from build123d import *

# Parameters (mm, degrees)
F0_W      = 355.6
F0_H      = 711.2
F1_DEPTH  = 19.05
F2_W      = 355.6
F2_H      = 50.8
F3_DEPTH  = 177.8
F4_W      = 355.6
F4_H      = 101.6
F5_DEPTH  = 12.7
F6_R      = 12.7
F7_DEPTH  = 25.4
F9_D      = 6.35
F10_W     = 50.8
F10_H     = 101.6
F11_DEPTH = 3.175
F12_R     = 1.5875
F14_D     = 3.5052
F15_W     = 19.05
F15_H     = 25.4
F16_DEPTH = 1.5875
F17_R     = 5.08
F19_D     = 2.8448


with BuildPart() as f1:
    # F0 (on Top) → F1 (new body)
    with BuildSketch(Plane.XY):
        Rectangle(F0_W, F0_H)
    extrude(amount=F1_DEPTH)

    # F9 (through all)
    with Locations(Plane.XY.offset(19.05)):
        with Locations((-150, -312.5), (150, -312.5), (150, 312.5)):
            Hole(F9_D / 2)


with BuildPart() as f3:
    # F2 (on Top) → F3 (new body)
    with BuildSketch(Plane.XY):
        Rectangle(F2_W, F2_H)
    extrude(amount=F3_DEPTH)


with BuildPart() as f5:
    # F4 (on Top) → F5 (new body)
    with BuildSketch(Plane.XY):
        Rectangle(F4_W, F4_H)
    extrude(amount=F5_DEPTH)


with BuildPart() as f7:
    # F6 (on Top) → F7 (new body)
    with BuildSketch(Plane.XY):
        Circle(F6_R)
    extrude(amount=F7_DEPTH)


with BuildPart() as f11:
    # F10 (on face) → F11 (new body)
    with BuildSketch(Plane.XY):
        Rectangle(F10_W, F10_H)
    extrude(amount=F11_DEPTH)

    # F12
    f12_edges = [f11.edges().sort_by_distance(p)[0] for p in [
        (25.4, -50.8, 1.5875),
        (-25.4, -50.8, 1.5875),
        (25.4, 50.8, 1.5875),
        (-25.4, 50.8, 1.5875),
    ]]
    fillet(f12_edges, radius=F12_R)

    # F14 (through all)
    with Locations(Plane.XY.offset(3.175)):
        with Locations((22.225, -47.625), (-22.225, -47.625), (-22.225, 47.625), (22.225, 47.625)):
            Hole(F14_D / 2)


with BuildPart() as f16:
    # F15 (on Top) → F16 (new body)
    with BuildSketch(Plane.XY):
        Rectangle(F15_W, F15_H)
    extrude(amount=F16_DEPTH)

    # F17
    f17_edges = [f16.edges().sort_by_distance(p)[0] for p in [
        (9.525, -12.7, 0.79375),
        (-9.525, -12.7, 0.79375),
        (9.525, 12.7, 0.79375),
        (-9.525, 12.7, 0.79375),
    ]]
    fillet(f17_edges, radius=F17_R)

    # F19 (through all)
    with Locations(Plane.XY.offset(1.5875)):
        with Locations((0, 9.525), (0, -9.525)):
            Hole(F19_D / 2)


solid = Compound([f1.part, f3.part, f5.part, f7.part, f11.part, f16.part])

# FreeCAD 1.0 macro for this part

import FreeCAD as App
import Part
import Sketcher

V = App.Vector
Q = App.Units.Quantity


def edges_at(feature, points):
    """Names of the edges that pass closest to the given points."""
    edges = feature.Shape.Edges
    near = lambda p: min(range(len(edges)), key=lambda i: edges[i].distToShape(Part.Vertex(*p))[0])
    return sorted({f"Edge{near(p) + 1}" for p in points})


def add_polygon(sketch, points):
    """Adds a closed chain of lines whose ends are joined by coincident constraints."""
    first, n = sketch.GeometryCount, len(points)
    for a, b in zip(points, points[1:] + points[:1]):
        sketch.addGeometry(Part.LineSegment(App.Vector(*a, 0), App.Vector(*b, 0)), False)
    for i in range(n):
        sketch.addConstraint(Sketcher.Constraint("Coincident", first + i, 2, first + (i + 1) % n, 1))

doc = App.newDocument("Part")
body = doc.addObject("PartDesign::Body", "Body")

# Sketch on XY plane
sketch1 = doc.addObject("Sketcher::SketchObject", "Sketch")
body.addObject(sketch1)
sketch1.AttachmentSupport = (doc.XY_Plane, [""])
sketch1.MapMode = "FlatFace"
add_polygon(sketch1, [(-178, 356), (-178, -356), (178, -356), (178, 356)])  # lines 0-3
sketch1.addConstraint([
    Sketcher.Constraint("Vertical", 0),
    Sketcher.Constraint("Horizontal", 1),
    Sketcher.Constraint("Vertical", 2),
    Sketcher.Constraint("Horizontal", 3),
    Sketcher.Constraint("Symmetric", 0, 2, 2, 2, -1, 1),
    Sketcher.Constraint("DistanceX", 1, 1, 1, 2, Q("14 in")),
    Sketcher.Constraint("DistanceY", 0, 2, 0, 1, Q("28 in")),
])
pad1 = doc.addObject("PartDesign::Pad", "Pad")
body.addObject(pad1)
pad1.Profile = sketch1
pad1.Length = Q("0.75 in")

# Sketch on XY plane
sketch2 = doc.addObject("Sketcher::SketchObject", "Sketch001")
body.addObject(sketch2)
sketch2.AttachmentSupport = (doc.XY_Plane, [""])
sketch2.MapMode = "FlatFace"
sketch2.AttachmentOffset = App.Placement(V(0, 0, 0.75 * 25.4), App.Rotation())
sketch2.addGeometry([
    Part.Circle(V(-150, -312.5, 0), V(0, 0, 1), 3.2),
    Part.Circle(V(150, -312.5, 0), V(0, 0, 1), 3.2),
    Part.Circle(V(150, 312.5, 0), V(0, 0, 1), 3.2),
], False)
sketch2.addConstraint([
    Sketcher.Constraint("Equal", 0, 1),
    Sketcher.Constraint("Equal", 1, 2),
    Sketcher.Constraint("Symmetric", 0, 3, 2, 3, -1, 1),
    Sketcher.Constraint("Symmetric", 0, 3, 1, 3, -2),
    Sketcher.Constraint("Diameter", 0, Q("0.25 in")),
    Sketcher.Constraint("DistanceX", 0, 3, -1, 1, Q("150 mm")),
    Sketcher.Constraint("DistanceY", 0, 3, -1, 1, Q("312.5 mm")),
])
doc.recompute()
hole = doc.addObject("PartDesign::Hole", "Hole")
body.addObject(hole)
hole.Profile = sketch2
hole.ThreadType = "None"
hole.Diameter = Q("0.25 in")
hole.DepthType = "ThroughAll"
body2 = doc.addObject("PartDesign::Body", "Body001")

# Sketch on XY plane
sketch3 = doc.addObject("Sketcher::SketchObject", "Sketch002")
body2.addObject(sketch3)
sketch3.AttachmentSupport = (doc.getObject("XY_Plane001"), [""])
sketch3.MapMode = "FlatFace"
add_polygon(sketch3, [(-178, 25), (-178, -25), (178, -25), (178, 25)])  # lines 0-3
sketch3.addConstraint([
    Sketcher.Constraint("Vertical", 0),
    Sketcher.Constraint("Horizontal", 1),
    Sketcher.Constraint("Vertical", 2),
    Sketcher.Constraint("Horizontal", 3),
    Sketcher.Constraint("Symmetric", 0, 2, 2, 2, -1, 1),
    Sketcher.Constraint("DistanceX", 1, 1, 1, 2, Q("14 in")),
    Sketcher.Constraint("DistanceY", 0, 2, 0, 1, Q("2 in")),
])
pad2 = doc.addObject("PartDesign::Pad", "Pad001")
body2.addObject(pad2)
pad2.Profile = sketch3
pad2.Length = Q("7 in")
body3 = doc.addObject("PartDesign::Body", "Body002")

# Sketch on XY plane
sketch4 = doc.addObject("Sketcher::SketchObject", "Sketch003")
body3.addObject(sketch4)
sketch4.AttachmentSupport = (doc.getObject("XY_Plane002"), [""])
sketch4.MapMode = "FlatFace"
add_polygon(sketch4, [(-178, 51), (-178, -51), (178, -51), (178, 51)])  # lines 0-3
sketch4.addConstraint([
    Sketcher.Constraint("Vertical", 0),
    Sketcher.Constraint("Horizontal", 1),
    Sketcher.Constraint("Vertical", 2),
    Sketcher.Constraint("Horizontal", 3),
    Sketcher.Constraint("Symmetric", 0, 2, 2, 2, -1, 1),
    Sketcher.Constraint("DistanceX", 1, 1, 1, 2, Q("14 in")),
    Sketcher.Constraint("DistanceY", 0, 2, 0, 1, Q("4 in")),
])
pad3 = doc.addObject("PartDesign::Pad", "Pad002")
body3.addObject(pad3)
pad3.Profile = sketch4
pad3.Length = Q("0.5 in")
body4 = doc.addObject("PartDesign::Body", "Body003")

# Sketch on XY plane
sketch5 = doc.addObject("Sketcher::SketchObject", "Sketch004")
body4.addObject(sketch5)
sketch5.AttachmentSupport = (doc.getObject("XY_Plane003"), [""])
sketch5.MapMode = "FlatFace"
sketch5.addGeometry(Part.Circle(V(0, 0, 0), V(0, 0, 1), 13), False)
sketch5.addConstraint([
    Sketcher.Constraint("Coincident", 0, 3, -1, 1),
    Sketcher.Constraint("Diameter", 0, Q("1 in")),
])
pad4 = doc.addObject("PartDesign::Pad", "Pad003")
body4.addObject(pad4)
pad4.Profile = sketch5
pad4.Length = Q("1 in")
body5 = doc.addObject("PartDesign::Body", "Body004")

# Sketch on XY plane
sketch6 = doc.addObject("Sketcher::SketchObject", "Sketch005")
body5.addObject(sketch6)
sketch6.AttachmentSupport = (doc.getObject("XY_Plane004"), [""])
sketch6.MapMode = "FlatFace"
add_polygon(sketch6, [(-25, 51), (-25, -51), (25, -51), (25, 51)])  # lines 0-3
sketch6.addConstraint([
    Sketcher.Constraint("Vertical", 0),
    Sketcher.Constraint("Horizontal", 1),
    Sketcher.Constraint("Vertical", 2),
    Sketcher.Constraint("Horizontal", 3),
    Sketcher.Constraint("Symmetric", 0, 2, 2, 2, -1, 1),
    Sketcher.Constraint("DistanceX", 1, 1, 1, 2, Q("2 in")),
    Sketcher.Constraint("DistanceY", 0, 2, 0, 1, Q("4 in")),
])
pad5 = doc.addObject("PartDesign::Pad", "Pad004")
body5.addObject(pad5)
pad5.Profile = sketch6
pad5.Length = Q("0.125 in")
doc.recompute()

fillet = doc.addObject("PartDesign::Fillet", "Fillet")
body5.addObject(fillet)
fillet.Base = (pad5, edges_at(pad5, [
    (25.4, -50.8, 1.587),
    (-25.4, -50.8, 1.587),
    (25.4, 50.8, 1.587),
    (-25.4, 50.8, 1.587),
]))
fillet.Radius = Q("0.0625 in")

# Sketch on XY plane
sketch7 = doc.addObject("Sketcher::SketchObject", "Sketch006")
body5.addObject(sketch7)
sketch7.AttachmentSupport = (doc.getObject("XY_Plane004"), [""])
sketch7.MapMode = "FlatFace"
sketch7.AttachmentOffset = App.Placement(V(0, 0, 0.125 * 25.4), App.Rotation())
sketch7.addGeometry([
    Part.Circle(V(22.2, -47.6, 0), V(0, 0, 1), 1.8),
    Part.Circle(V(-22.2, -47.6, 0), V(0, 0, 1), 1.8),
    Part.Circle(V(-22.2, 47.6, 0), V(0, 0, 1), 1.8),
    Part.Circle(V(22.2, 47.6, 0), V(0, 0, 1), 1.8),
], False)
sketch7.addConstraint([
    Sketcher.Constraint("Equal", 0, 1),
    Sketcher.Constraint("Equal", 1, 2),
    Sketcher.Constraint("Equal", 2, 3),
    Sketcher.Constraint("Symmetric", 0, 3, 2, 3, -1, 1),
    Sketcher.Constraint("Symmetric", 1, 3, 3, 3, -1, 1),
    Sketcher.Constraint("Symmetric", 0, 3, 1, 3, -2),
    Sketcher.Constraint("Diameter", 0, Q("0.138 in")),
    Sketcher.Constraint("DistanceX", 1, 3, 0, 3, Q("1.75 in")),
    Sketcher.Constraint("DistanceY", 1, 3, 2, 3, Q("3.75 in")),
])
doc.recompute()
hole2 = doc.addObject("PartDesign::Hole", "Hole001")
body5.addObject(hole2)
hole2.Profile = sketch7
hole2.ThreadType = "None"
hole2.Diameter = Q("0.138 in")
hole2.DepthType = "ThroughAll"
body6 = doc.addObject("PartDesign::Body", "Body005")

# Sketch on XY plane
sketch8 = doc.addObject("Sketcher::SketchObject", "Sketch007")
body6.addObject(sketch8)
sketch8.AttachmentSupport = (doc.getObject("XY_Plane005"), [""])
sketch8.MapMode = "FlatFace"
add_polygon(sketch8, [(-10, 13), (-10, -13), (10, -13), (10, 13)])  # lines 0-3
sketch8.addConstraint([
    Sketcher.Constraint("Vertical", 0),
    Sketcher.Constraint("Horizontal", 1),
    Sketcher.Constraint("Vertical", 2),
    Sketcher.Constraint("Horizontal", 3),
    Sketcher.Constraint("Symmetric", 0, 2, 2, 2, -1, 1),
    Sketcher.Constraint("DistanceY", 0, 2, 0, 1, Q("1 in")),
    Sketcher.Constraint("DistanceX", 1, 1, 1, 2, Q("0.75 in")),
])
pad6 = doc.addObject("PartDesign::Pad", "Pad005")
body6.addObject(pad6)
pad6.Profile = sketch8
pad6.Length = Q("0.0625 in")
doc.recompute()

fillet2 = doc.addObject("PartDesign::Fillet", "Fillet001")
body6.addObject(fillet2)
fillet2.Base = (pad6, edges_at(pad6, [
    (9.525, -12.7, 0.794),
    (-9.525, -12.7, 0.794),
    (9.525, 12.7, 0.794),
    (-9.525, 12.7, 0.794),
]))
fillet2.Radius = Q("0.2 in")

# Sketch on XY plane
sketch9 = doc.addObject("Sketcher::SketchObject", "Sketch008")
body6.addObject(sketch9)
sketch9.AttachmentSupport = (doc.getObject("XY_Plane005"), [""])
sketch9.MapMode = "FlatFace"
sketch9.AttachmentOffset = App.Placement(V(0, 0, 0.0625 * 25.4), App.Rotation())
sketch9.addGeometry([
    Part.Circle(V(0, 9.5, 0), V(0, 0, 1), 1.4),
    Part.Circle(V(0, -9.5, 0), V(0, 0, 1), 1.4),
], False)
sketch9.addConstraint([
    Sketcher.Constraint("Equal", 0, 1),
    Sketcher.Constraint("Symmetric", 0, 3, 1, 3, -1, 1),
    Sketcher.Constraint("PointOnObject", 0, 3, -2),
    Sketcher.Constraint("Diameter", 0, Q("0.112 in")),
    Sketcher.Constraint("DistanceY", 1, 3, 0, 3, Q("0.75 in")),
])
doc.recompute()
hole3 = doc.addObject("PartDesign::Hole", "Hole002")
body6.addObject(hole3)
hole3.Profile = sketch9
hole3.ThreadType = "None"
hole3.Diameter = Q("0.112 in")
hole3.DepthType = "ThroughAll"

doc.recompute()
